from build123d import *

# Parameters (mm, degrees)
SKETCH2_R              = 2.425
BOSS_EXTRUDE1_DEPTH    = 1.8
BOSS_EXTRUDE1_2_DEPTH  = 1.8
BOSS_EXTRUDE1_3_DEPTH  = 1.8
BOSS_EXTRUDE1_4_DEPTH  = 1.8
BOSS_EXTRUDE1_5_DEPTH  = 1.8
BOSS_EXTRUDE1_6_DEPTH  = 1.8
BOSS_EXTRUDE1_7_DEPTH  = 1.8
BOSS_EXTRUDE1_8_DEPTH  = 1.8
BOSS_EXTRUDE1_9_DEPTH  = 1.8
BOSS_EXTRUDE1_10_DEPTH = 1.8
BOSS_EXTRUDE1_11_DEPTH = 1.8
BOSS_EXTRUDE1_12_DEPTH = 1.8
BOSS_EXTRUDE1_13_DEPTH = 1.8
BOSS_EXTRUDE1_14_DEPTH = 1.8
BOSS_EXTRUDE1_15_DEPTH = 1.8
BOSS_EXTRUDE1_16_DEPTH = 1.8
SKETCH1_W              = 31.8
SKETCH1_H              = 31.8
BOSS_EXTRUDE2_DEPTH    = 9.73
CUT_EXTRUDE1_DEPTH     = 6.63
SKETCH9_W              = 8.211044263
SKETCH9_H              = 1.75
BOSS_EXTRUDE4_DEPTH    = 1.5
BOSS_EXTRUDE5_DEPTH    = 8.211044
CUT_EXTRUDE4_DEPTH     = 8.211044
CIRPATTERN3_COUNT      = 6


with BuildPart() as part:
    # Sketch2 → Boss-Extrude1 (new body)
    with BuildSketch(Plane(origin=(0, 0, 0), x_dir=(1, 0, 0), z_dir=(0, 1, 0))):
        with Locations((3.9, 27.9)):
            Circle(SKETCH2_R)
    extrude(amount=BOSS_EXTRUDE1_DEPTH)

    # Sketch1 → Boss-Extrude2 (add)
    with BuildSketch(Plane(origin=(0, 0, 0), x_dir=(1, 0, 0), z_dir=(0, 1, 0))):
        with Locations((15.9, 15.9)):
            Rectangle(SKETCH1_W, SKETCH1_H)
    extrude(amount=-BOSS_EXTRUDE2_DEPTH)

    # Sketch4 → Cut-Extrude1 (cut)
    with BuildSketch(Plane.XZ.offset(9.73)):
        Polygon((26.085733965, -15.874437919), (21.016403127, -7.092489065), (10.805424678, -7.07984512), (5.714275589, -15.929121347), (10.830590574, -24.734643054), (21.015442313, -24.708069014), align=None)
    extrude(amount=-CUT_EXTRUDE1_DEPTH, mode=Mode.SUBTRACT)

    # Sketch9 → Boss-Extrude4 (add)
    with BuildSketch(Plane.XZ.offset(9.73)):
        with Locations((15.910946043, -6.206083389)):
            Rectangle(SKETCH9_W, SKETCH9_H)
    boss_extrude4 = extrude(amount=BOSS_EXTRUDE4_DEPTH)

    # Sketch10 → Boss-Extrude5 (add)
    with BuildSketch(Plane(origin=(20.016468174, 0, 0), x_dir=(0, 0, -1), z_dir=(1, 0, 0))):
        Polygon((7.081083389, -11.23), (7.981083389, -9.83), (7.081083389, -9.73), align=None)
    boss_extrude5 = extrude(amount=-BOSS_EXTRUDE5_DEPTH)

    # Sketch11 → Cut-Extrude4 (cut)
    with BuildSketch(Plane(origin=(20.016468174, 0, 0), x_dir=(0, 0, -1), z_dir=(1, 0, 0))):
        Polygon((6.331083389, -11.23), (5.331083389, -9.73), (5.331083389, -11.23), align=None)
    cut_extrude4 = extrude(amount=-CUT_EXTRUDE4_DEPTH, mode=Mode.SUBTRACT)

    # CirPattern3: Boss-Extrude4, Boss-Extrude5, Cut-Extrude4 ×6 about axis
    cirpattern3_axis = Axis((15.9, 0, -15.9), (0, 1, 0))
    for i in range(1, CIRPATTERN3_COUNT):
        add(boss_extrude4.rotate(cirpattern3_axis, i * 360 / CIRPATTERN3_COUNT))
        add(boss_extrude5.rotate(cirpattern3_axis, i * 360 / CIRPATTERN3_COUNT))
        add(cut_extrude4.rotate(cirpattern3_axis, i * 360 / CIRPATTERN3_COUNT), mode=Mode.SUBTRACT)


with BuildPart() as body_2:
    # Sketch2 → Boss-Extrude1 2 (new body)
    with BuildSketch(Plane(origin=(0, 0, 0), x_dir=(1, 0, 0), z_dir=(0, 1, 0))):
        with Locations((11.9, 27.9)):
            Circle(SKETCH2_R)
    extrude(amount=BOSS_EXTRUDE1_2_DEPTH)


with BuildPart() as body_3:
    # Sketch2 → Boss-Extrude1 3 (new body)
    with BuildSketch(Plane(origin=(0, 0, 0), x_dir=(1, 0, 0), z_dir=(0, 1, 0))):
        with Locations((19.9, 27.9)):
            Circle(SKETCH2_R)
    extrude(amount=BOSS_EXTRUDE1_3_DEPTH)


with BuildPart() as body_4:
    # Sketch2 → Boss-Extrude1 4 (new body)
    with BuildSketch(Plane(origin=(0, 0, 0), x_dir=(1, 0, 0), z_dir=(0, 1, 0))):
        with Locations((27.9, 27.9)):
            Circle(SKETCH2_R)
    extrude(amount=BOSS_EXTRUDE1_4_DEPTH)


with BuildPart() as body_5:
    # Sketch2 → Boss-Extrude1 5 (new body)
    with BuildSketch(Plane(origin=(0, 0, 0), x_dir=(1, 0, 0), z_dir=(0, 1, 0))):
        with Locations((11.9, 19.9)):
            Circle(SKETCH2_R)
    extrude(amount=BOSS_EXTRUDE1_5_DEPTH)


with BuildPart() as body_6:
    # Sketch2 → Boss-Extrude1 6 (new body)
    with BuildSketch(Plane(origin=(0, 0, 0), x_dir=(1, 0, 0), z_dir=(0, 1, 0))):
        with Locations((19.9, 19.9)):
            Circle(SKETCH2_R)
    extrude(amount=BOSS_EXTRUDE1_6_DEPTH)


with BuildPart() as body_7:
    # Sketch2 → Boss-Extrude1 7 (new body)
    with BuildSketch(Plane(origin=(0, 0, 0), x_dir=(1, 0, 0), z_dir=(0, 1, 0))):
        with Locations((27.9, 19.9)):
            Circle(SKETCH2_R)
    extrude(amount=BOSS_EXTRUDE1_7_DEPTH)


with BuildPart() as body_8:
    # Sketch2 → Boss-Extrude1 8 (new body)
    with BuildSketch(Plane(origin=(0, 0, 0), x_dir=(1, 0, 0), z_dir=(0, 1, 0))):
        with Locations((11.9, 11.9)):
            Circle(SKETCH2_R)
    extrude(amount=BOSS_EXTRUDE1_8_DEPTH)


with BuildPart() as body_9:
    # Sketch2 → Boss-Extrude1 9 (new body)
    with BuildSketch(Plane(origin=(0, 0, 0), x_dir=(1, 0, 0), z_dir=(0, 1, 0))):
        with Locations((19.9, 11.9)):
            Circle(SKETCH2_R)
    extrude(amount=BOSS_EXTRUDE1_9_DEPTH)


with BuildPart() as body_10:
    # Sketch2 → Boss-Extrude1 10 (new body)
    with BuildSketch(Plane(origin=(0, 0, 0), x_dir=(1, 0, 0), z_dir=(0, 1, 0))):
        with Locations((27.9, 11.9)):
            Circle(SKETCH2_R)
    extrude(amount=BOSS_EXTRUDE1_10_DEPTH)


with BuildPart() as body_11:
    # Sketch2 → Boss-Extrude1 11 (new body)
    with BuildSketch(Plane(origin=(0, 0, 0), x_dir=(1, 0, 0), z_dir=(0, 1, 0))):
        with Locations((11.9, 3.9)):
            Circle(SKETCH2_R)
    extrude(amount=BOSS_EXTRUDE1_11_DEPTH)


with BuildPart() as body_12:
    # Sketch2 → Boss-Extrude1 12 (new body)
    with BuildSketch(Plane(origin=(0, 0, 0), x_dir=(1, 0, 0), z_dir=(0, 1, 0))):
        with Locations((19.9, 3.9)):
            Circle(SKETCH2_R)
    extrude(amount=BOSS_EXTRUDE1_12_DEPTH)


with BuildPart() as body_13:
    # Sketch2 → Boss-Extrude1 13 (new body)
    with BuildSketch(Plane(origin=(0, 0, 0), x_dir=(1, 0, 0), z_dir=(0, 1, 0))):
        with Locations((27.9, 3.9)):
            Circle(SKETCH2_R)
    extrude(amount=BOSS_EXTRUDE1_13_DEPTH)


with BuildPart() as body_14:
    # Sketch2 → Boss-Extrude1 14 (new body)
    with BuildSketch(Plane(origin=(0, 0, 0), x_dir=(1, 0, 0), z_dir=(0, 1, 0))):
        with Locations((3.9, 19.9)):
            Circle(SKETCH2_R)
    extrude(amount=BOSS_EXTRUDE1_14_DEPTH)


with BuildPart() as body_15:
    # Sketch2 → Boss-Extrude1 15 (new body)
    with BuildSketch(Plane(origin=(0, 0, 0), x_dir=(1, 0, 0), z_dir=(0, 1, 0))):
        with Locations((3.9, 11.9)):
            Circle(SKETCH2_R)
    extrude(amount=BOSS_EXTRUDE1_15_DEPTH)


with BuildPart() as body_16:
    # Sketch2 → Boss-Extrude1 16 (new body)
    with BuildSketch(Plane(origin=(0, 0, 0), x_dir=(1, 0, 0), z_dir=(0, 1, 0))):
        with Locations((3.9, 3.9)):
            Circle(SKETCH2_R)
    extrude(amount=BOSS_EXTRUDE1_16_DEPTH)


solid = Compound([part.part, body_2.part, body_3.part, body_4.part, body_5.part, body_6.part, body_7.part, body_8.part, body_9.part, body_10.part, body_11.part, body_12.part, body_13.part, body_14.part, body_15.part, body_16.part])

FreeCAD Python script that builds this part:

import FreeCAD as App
import Part
import Sketcher
from FreeCAD import Vector


def add_polygon(sketch, points):
    """Adds a closed chain of lines whose ends are joined by coincident constraints."""
    first, n = sketch.GeometryCount, len(points)
    for a, b in zip(points, points[1:] + points[:1]):
        sketch.addGeometry(Part.LineSegment(App.Vector(*a, 0), App.Vector(*b, 0)), False)
    for i in range(n):
        sketch.addConstraint(Sketcher.Constraint("Coincident", first + i, 2, first + (i + 1) % n, 1))

doc = App.newDocument("Part")
body = doc.addObject("PartDesign::Body", "Body")

# Sketch on XZ plane
sketch1 = body.newObject("Sketcher::SketchObject", "Sketch")
sketch1.AttachmentSupport = (doc.getObject("XZ_Plane"), [""])
sketch1.MapMode = "FlatFace"
sketch1.addGeometry(Part.Circle(Vector(3.9, -27.9, 0), Vector(0, 0, 1), 2.425), False)
sketch1.addConstraint([
    Sketcher.Constraint("Diameter", 0, 4.85),
    Sketcher.Constraint("DistanceX", -1, 1, 0, 3, 3.9),
    Sketcher.Constraint("DistanceY", 0, 3, -1, 1, 27.9),
])
pad1 = body.newObject("PartDesign::Pad", "Pad")
pad1.Profile = sketch1
pad1.Length = 1.8
pad1.Reversed = True

# Sketch on XZ plane
sketch2 = body.newObject("Sketcher::SketchObject", "Sketch001")
sketch2.AttachmentSupport = (doc.getObject("XZ_Plane"), [""])
sketch2.MapMode = "FlatFace"
add_polygon(sketch2, [(0, -31.8), (0, 0), (31.8, 0), (31.8, -31.8)])  # lines 0-3
sketch2.addConstraint([
    Sketcher.Constraint("Vertical", 0),
    Sketcher.Constraint("Horizontal", 1),
    Sketcher.Constraint("Vertical", 2),
    Sketcher.Constraint("Horizontal", 3),
    Sketcher.Constraint("Coincident", 0, 2, -1, 1),
    Sketcher.Constraint("Equal", 3, 0),
    Sketcher.Constraint("DistanceX", 1, 1, 1, 2, 31.8),
])
pad2 = body.newObject("PartDesign::Pad", "Pad001")
pad2.Profile = sketch2
pad2.Length = 9.73

# Sketch on XZ plane
sketch3 = body.newObject("Sketcher::SketchObject", "Sketch002")
sketch3.AttachmentSupport = (doc.getObject("XZ_Plane"), [""])
sketch3.MapMode = "FlatFace"
sketch3.AttachmentOffset = App.Placement(Vector(0, 0, 9.73), App.Rotation())
add_polygon(sketch3, [(26.085734, -15.874438), (21.016403, -7.092489), (10.805425, -7.079845), (5.714276, -15.929121), (10.830591, -24.734643), (21.015442, -24.708069)])  # lines 0-5
sketch3.addConstraint([
    Sketcher.Constraint("Distance", 3, 10.184002),
    Sketcher.Constraint("DistanceY", 0, 2, -1, 1, 7.092489),
    Sketcher.Constraint("DistanceY", 2, 2, -1, 1, 15.929121),
    Sketcher.Constraint("DistanceX", -1, 1, 3, 2, 10.830591),
    Sketcher.Constraint("DistanceY", 4, 2, -1, 1, 24.708069),
    Sketcher.Constraint("DistanceX", 1, 2, 0, 2, 10.210978),
    Sketcher.Constraint("DistanceX", 2, 2, 1, 2, 5.091149),
    Sketcher.Constraint("DistanceY", 3, 2, 2, 2, 8.805522),
    Sketcher.Constraint("DistanceX", 3, 2, 4, 2, 10.184852),
    Sketcher.Constraint("DistanceX", 0, 2, 5, 2, 5.069331),
    Sketcher.Constraint("DistanceY", 5, 2, 0, 2, 8.781949),
    Sketcher.Constraint("Distance", 2, 10.209284),
])
pocket1 = body.newObject("PartDesign::Pocket", "Pocket")
pocket1.Profile = sketch3
pocket1.Length = 6.63

# Sketch on XZ plane
sketch4 = body.newObject("Sketcher::SketchObject", "Sketch003")
sketch4.AttachmentSupport = (doc.getObject("XZ_Plane"), [""])
sketch4.MapMode = "FlatFace"
sketch4.AttachmentOffset = App.Placement(Vector(0, 0, 9.73), App.Rotation())
add_polygon(sketch4, [(11.805424, -5.331083), (11.805424, -7.081083), (20.016468, -7.081083), (20.016468, -5.331083)])  # lines 0-3
sketch4.addConstraint([
    Sketcher.Constraint("Vertical", 0),
    Sketcher.Constraint("Horizontal", 1),
    Sketcher.Constraint("Vertical", 2),
    Sketcher.Constraint("Horizontal", 3),
    Sketcher.Constraint("DistanceY", 0, 2, 0, 1, 1.75),
    Sketcher.Constraint("DistanceX", 1, 1, 1, 2, 8.211044),
    Sketcher.Constraint("DistanceX", -1, 1, 1, 2, 20.016468),
    Sketcher.Constraint("DistanceY", 0, 2, -1, 1, 7.081083),
])
pad3 = body.newObject("PartDesign::Pad", "Pad002")
pad3.Profile = sketch4
pad3.Length = 1.5

# Sketch on YZ plane
sketch5 = body.newObject("Sketcher::SketchObject", "Sketch004")
sketch5.AttachmentSupport = (doc.getObject("YZ_Plane"), [""])
sketch5.MapMode = "FlatFace"
sketch5.AttachmentOffset = App.Placement(Vector(0, 0, 20.016468), App.Rotation())
add_polygon(sketch5, [(-11.23, -7.081083), (-9.83, -7.981083), (-9.73, -7.081083)])  # lines 0-2
sketch5.addConstraint([
    Sketcher.Constraint("Horizontal", 2),
    Sketcher.Constraint("DistanceX", 2, 2, 2, 1, 1.5),
    Sketcher.Constraint("DistanceX", 0, 2, 1, 2, 0.1),
    Sketcher.Constraint("DistanceY", 0, 2, 1, 2, 0.9),
    Sketcher.Constraint("DistanceX", 0, 2, -1, 1, 9.83),
    Sketcher.Constraint("DistanceY", 0, 2, -1, 1, 7.981083),
])
pad4 = body.newObject("PartDesign::Pad", "Pad003")
pad4.Profile = sketch5
pad4.Length = 8.211044
pad4.Reversed = True

# Sketch on YZ plane
sketch6 = body.newObject("Sketcher::SketchObject", "Sketch005")
sketch6.AttachmentSupport = (doc.getObject("YZ_Plane"), [""])
sketch6.MapMode = "FlatFace"
sketch6.AttachmentOffset = App.Placement(Vector(0, 0, 20.016468), App.Rotation())
add_polygon(sketch6, [(-11.23, -6.331083), (-9.73, -5.331083), (-11.23, -5.331083)])  # lines 0-2
sketch6.addConstraint([
    Sketcher.Constraint("Horizontal", 1),
    Sketcher.Constraint("Vertical", 2),
    Sketcher.Constraint("DistanceY", 2, 2, 2, 1, 1.0),
    Sketcher.Constraint("DistanceX", 1, 2, 1, 1, 1.5),
    Sketcher.Constraint("DistanceX", 0, 2, -1, 1, 9.73),
    Sketcher.Constraint("DistanceY", 0, 2, -1, 1, 5.331083),
])
pocket2 = body.newObject("PartDesign::Pocket", "Pocket001")
pocket2.Profile = sketch6
pocket2.Length = 8.211044
doc.recompute()

datumline = body.newObject("PartDesign::Line", "DatumLine")
datumline.Placement = App.Placement(Vector(15.9, 0, -15.9), App.Rotation(Vector(0, 0, 1), Vector(0, 1, 0)))
polarpattern = body.newObject("PartDesign::PolarPattern", "PolarPattern")
polarpattern.Originals = [pad3, pad4, pocket2]
polarpattern.Axis = (datumline, [""])
polarpattern.Angle = 360
polarpattern.Occurrences = 6
body.Tip = polarpattern
body2 = doc.addObject("PartDesign::Body", "Body001")

# Sketch on XZ plane
sketch7 = body2.newObject("Sketcher::SketchObject", "Sketch006")
sketch7.AttachmentSupport = (doc.getObject("XZ_Plane001"), [""])
sketch7.MapMode = "FlatFace"
sketch7.addGeometry(Part.Circle(Vector(11.9, -27.9, 0), Vector(0, 0, 1), 2.425), False)
sketch7.addConstraint([
    Sketcher.Constraint("Diameter", 0, 4.85),
    Sketcher.Constraint("DistanceX", -1, 1, 0, 3, 11.9),
    Sketcher.Constraint("DistanceY", 0, 3, -1, 1, 27.9),
])
pad5 = body2.newObject("PartDesign::Pad", "Pad004")
pad5.Profile = sketch7
pad5.Length = 1.8
pad5.Reversed = True
body3 = doc.addObject("PartDesign::Body", "Body002")

# Sketch on XZ plane
sketch8 = body3.newObject("Sketcher::SketchObject", "Sketch007")
sketch8.AttachmentSupport = (doc.getObject("XZ_Plane002"), [""])
sketch8.MapMode = "FlatFace"
sketch8.addGeometry(Part.Circle(Vector(19.9, -27.9, 0), Vector(0, 0, 1), 2.425), False)
sketch8.addConstraint([
    Sketcher.Constraint("Diameter", 0, 4.85),
    Sketcher.Constraint("DistanceX", -1, 1, 0, 3, 19.9),
    Sketcher.Constraint("DistanceY", 0, 3, -1, 1, 27.9),
])
pad6 = body3.newObject("PartDesign::Pad", "Pad005")
pad6.Profile = sketch8
pad6.Length = 1.8
pad6.Reversed = True
body4 = doc.addObject("PartDesign::Body", "Body003")

# Sketch on XZ plane
sketch9 = body4.newObject("Sketcher::SketchObject", "Sketch008")
sketch9.AttachmentSupport = (doc.getObject("XZ_Plane003"), [""])
sketch9.MapMode = "FlatFace"
sketch9.addGeometry(Part.Circle(Vector(27.9, -27.9, 0), Vector(0, 0, 1), 2.425), False)
sketch9.addConstraint([
    Sketcher.Constraint("Diameter", 0, 4.85),
    Sketcher.Constraint("DistanceX", -1, 1, 0, 3, 27.9),
    Sketcher.Constraint("DistanceY", 0, 3, -1, 1, 27.9),
])
pad7 = body4.newObject("PartDesign::Pad", "Pad006")
pad7.Profile = sketch9
pad7.Length = 1.8
pad7.Reversed = True
body5 = doc.addObject("PartDesign::Body", "Body004")

# Sketch on XZ plane
sketch10 = body5.newObject("Sketcher::SketchObject", "Sketch009")
sketch10.AttachmentSupport = (doc.getObject("XZ_Plane004"), [""])
sketch10.MapMode = "FlatFace"
sketch10.addGeometry(Part.Circle(Vector(11.9, -19.9, 0), Vector(0, 0, 1), 2.425), False)
sketch10.addConstraint([
    Sketcher.Constraint("Diameter", 0, 4.85),
    Sketcher.Constraint("DistanceX", -1, 1, 0, 3, 11.9),
    Sketcher.Constraint("DistanceY", 0, 3, -1, 1, 19.9),
])
pad8 = body5.newObject("PartDesign::Pad", "Pad007")
pad8.Profile = sketch10
pad8.Length = 1.8
pad8.Reversed = True
body6 = doc.addObject("PartDesign::Body", "Body005")

# Sketch on XZ plane
sketch11 = body6.newObject("Sketcher::SketchObject", "Sketch010")
sketch11.AttachmentSupport = (doc.getObject("XZ_Plane005"), [""])
sketch11.MapMode = "FlatFace"
sketch11.addGeometry(Part.Circle(Vector(19.9, -19.9, 0), Vector(0, 0, 1), 2.425), False)
sketch11.addConstraint([
    Sketcher.Constraint("Diameter", 0, 4.85),
    Sketcher.Constraint("DistanceX", -1, 1, 0, 3, 19.9),
    Sketcher.Constraint("DistanceY", 0, 3, -1, 1, 19.9),
])
pad9 = body6.newObject("PartDesign::Pad", "Pad008")
pad9.Profile = sketch11
pad9.Length = 1.8
pad9.Reversed = True
body7 = doc.addObject("PartDesign::Body", "Body006")

# Sketch on XZ plane
sketch12 = body7.newObject("Sketcher::SketchObject", "Sketch011")
sketch12.AttachmentSupport = (doc.getObject("XZ_Plane006"), [""])
sketch12.MapMode = "FlatFace"
sketch12.addGeometry(Part.Circle(Vector(27.9, -19.9, 0), Vector(0, 0, 1), 2.425), False)
sketch12.addConstraint([
    Sketcher.Constraint("Diameter", 0, 4.85),
    Sketcher.Constraint("DistanceX", -1, 1, 0, 3, 27.9),
    Sketcher.Constraint("DistanceY", 0, 3, -1, 1, 19.9),
])
pad10 = body7.newObject("PartDesign::Pad", "Pad009")
pad10.Profile = sketch12
pad10.Length = 1.8
pad10.Reversed = True
body8 = doc.addObject("PartDesign::Body", "Body007")

# Sketch on XZ plane
sketch13 = body8.newObject("Sketcher::SketchObject", "Sketch012")
sketch13.AttachmentSupport = (doc.getObject("XZ_Plane007"), [""])
sketch13.MapMode = "FlatFace"
sketch13.addGeometry(Part.Circle(Vector(11.9, -11.9, 0), Vector(0, 0, 1), 2.425), False)
sketch13.addConstraint([
    Sketcher.Constraint("Diameter", 0, 4.85),
    Sketcher.Constraint("DistanceX", -1, 1, 0, 3, 11.9),
    Sketcher.Constraint("DistanceY", 0, 3, -1, 1, 11.9),
])
pad11 = body8.newObject("PartDesign::Pad", "Pad010")
pad11.Profile = sketch13
pad11.Length = 1.8
pad11.Reversed = True
body9 = doc.addObject("PartDesign::Body", "Body008")

# Sketch on XZ plane
sketch14 = body9.newObject("Sketcher::SketchObject", "Sketch013")
sketch14.AttachmentSupport = (doc.getObject("XZ_Plane008"), [""])
sketch14.MapMode = "FlatFace"
sketch14.addGeometry(Part.Circle(Vector(19.9, -11.9, 0), Vector(0, 0, 1), 2.425), False)
sketch14.addConstraint([
    Sketcher.Constraint("Diameter", 0, 4.85),
    Sketcher.Constraint("DistanceX", -1, 1, 0, 3, 19.9),
    Sketcher.Constraint("DistanceY", 0, 3, -1, 1, 11.9),
])
pad12 = body9.newObject("PartDesign::Pad", "Pad011")
pad12.Profile = sketch14
pad12.Length = 1.8
pad12.Reversed = True
body10 = doc.addObject("PartDesign::Body", "Body009")

# Sketch on XZ plane
sketch15 = body10.newObject("Sketcher::SketchObject", "Sketch014")
sketch15.AttachmentSupport = (doc.getObject("XZ_Plane009"), [""])
sketch15.MapMode = "FlatFace"
sketch15.addGeometry(Part.Circle(Vector(27.9, -11.9, 0), Vector(0, 0, 1), 2.425), False)
sketch15.addConstraint([
    Sketcher.Constraint("Diameter", 0, 4.85),
    Sketcher.Constraint("DistanceX", -1, 1, 0, 3, 27.9),
    Sketcher.Constraint("DistanceY", 0, 3, -1, 1, 11.9),
])
pad13 = body10.newObject("PartDesign::Pad", "Pad012")
pad13.Profile = sketch15
pad13.Length = 1.8
pad13.Reversed = True
body11 = doc.addObject("PartDesign::Body", "Body010")

# Sketch on XZ plane
sketch16 = body11.newObject("Sketcher::SketchObject", "Sketch015")
sketch16.AttachmentSupport = (doc.getObject("XZ_Plane010"), [""])
sketch16.MapMode = "FlatFace"
sketch16.addGeometry(Part.Circle(Vector(11.9, -3.9, 0), Vector(0, 0, 1), 2.425), False)
sketch16.addConstraint([
    Sketcher.Constraint("Diameter", 0, 4.85),
    Sketcher.Constraint("DistanceX", -1, 1, 0, 3, 11.9),
    Sketcher.Constraint("DistanceY", 0, 3, -1, 1, 3.9),
])
pad14 = body11.newObject("PartDesign::Pad", "Pad013")
pad14.Profile = sketch16
pad14.Length = 1.8
pad14.Reversed = True
body12 = doc.addObject("PartDesign::Body", "Body011")

# Sketch on XZ plane
sketch17 = body12.newObject("Sketcher::SketchObject", "Sketch016")
sketch17.AttachmentSupport = (doc.getObject("XZ_Plane011"), [""])
sketch17.MapMode = "FlatFace"
sketch17.addGeometry(Part.Circle(Vector(19.9, -3.9, 0), Vector(0, 0, 1), 2.425), False)
sketch17.addConstraint([
    Sketcher.Constraint("Diameter", 0, 4.85),
    Sketcher.Constraint("DistanceX", -1, 1, 0, 3, 19.9),
    Sketcher.Constraint("DistanceY", 0, 3, -1, 1, 3.9),
])
pad15 = body12.newObject("PartDesign::Pad", "Pad014")
pad15.Profile = sketch17
pad15.Length = 1.8
pad15.Reversed = True
body13 = doc.addObject("PartDesign::Body", "Body012")

# Sketch on XZ plane
sketch18 = body13.newObject("Sketcher::SketchObject", "Sketch017")
sketch18.AttachmentSupport = (doc.getObject("XZ_Plane012"), [""])
sketch18.MapMode = "FlatFace"
sketch18.addGeometry(Part.Circle(Vector(27.9, -3.9, 0), Vector(0, 0, 1), 2.425), False)
sketch18.addConstraint([
    Sketcher.Constraint("Diameter", 0, 4.85),
    Sketcher.Constraint("DistanceX", -1, 1, 0, 3, 27.9),
    Sketcher.Constraint("DistanceY", 0, 3, -1, 1, 3.9),
])
pad16 = body13.newObject("PartDesign::Pad", "Pad015")
pad16.Profile = sketch18
pad16.Length = 1.8
pad16.Reversed = True
body14 = doc.addObject("PartDesign::Body", "Body013")

# Sketch on XZ plane
sketch19 = body14.newObject("Sketcher::SketchObject", "Sketch018")
sketch19.AttachmentSupport = (doc.getObject("XZ_Plane013"), [""])
sketch19.MapMode = "FlatFace"
sketch19.addGeometry(Part.Circle(Vector(3.9, -19.9, 0), Vector(0, 0, 1), 2.425), False)
sketch19.addConstraint([
    Sketcher.Constraint("Diameter", 0, 4.85),
    Sketcher.Constraint("DistanceX", -1, 1, 0, 3, 3.9),
    Sketcher.Constraint("DistanceY", 0, 3, -1, 1, 19.9),
])
pad17 = body14.newObject("PartDesign::Pad", "Pad016")
pad17.Profile = sketch19
pad17.Length = 1.8
pad17.Reversed = True
body15 = doc.addObject("PartDesign::Body", "Body014")

# Sketch on XZ plane
sketch20 = body15.newObject("Sketcher::SketchObject", "Sketch019")
sketch20.AttachmentSupport = (doc.getObject("XZ_Plane014"), [""])
sketch20.MapMode = "FlatFace"
sketch20.addGeometry(Part.Circle(Vector(3.9, -11.9, 0), Vector(0, 0, 1), 2.425), False)
sketch20.addConstraint([
    Sketcher.Constraint("Diameter", 0, 4.85),
    Sketcher.Constraint("DistanceX", -1, 1, 0, 3, 3.9),
    Sketcher.Constraint("DistanceY", 0, 3, -1, 1, 11.9),
])
pad18 = body15.newObject("PartDesign::Pad", "Pad017")
pad18.Profile = sketch20
pad18.Length = 1.8
pad18.Reversed = True
body16 = doc.addObject("PartDesign::Body", "Body015")

# Sketch on XZ plane
sketch21 = body16.newObject("Sketcher::SketchObject", "Sketch020")
sketch21.AttachmentSupport = (doc.getObject("XZ_Plane015"), [""])
sketch21.MapMode = "FlatFace"
sketch21.addGeometry(Part.Circle(Vector(3.9, -3.9, 0), Vector(0, 0, 1), 2.425), False)
sketch21.addConstraint([
    Sketcher.Constraint("Diameter", 0, 4.85),
    Sketcher.Constraint("DistanceX", -1, 1, 0, 3, 3.9),
    Sketcher.Constraint("DistanceY", 0, 3, -1, 1, 3.9),
])
pad19 = body16.newObject("PartDesign::Pad", "Pad018")
pad19.Profile = sketch21
pad19.Length = 1.8
pad19.Reversed = True

doc.recompute()
